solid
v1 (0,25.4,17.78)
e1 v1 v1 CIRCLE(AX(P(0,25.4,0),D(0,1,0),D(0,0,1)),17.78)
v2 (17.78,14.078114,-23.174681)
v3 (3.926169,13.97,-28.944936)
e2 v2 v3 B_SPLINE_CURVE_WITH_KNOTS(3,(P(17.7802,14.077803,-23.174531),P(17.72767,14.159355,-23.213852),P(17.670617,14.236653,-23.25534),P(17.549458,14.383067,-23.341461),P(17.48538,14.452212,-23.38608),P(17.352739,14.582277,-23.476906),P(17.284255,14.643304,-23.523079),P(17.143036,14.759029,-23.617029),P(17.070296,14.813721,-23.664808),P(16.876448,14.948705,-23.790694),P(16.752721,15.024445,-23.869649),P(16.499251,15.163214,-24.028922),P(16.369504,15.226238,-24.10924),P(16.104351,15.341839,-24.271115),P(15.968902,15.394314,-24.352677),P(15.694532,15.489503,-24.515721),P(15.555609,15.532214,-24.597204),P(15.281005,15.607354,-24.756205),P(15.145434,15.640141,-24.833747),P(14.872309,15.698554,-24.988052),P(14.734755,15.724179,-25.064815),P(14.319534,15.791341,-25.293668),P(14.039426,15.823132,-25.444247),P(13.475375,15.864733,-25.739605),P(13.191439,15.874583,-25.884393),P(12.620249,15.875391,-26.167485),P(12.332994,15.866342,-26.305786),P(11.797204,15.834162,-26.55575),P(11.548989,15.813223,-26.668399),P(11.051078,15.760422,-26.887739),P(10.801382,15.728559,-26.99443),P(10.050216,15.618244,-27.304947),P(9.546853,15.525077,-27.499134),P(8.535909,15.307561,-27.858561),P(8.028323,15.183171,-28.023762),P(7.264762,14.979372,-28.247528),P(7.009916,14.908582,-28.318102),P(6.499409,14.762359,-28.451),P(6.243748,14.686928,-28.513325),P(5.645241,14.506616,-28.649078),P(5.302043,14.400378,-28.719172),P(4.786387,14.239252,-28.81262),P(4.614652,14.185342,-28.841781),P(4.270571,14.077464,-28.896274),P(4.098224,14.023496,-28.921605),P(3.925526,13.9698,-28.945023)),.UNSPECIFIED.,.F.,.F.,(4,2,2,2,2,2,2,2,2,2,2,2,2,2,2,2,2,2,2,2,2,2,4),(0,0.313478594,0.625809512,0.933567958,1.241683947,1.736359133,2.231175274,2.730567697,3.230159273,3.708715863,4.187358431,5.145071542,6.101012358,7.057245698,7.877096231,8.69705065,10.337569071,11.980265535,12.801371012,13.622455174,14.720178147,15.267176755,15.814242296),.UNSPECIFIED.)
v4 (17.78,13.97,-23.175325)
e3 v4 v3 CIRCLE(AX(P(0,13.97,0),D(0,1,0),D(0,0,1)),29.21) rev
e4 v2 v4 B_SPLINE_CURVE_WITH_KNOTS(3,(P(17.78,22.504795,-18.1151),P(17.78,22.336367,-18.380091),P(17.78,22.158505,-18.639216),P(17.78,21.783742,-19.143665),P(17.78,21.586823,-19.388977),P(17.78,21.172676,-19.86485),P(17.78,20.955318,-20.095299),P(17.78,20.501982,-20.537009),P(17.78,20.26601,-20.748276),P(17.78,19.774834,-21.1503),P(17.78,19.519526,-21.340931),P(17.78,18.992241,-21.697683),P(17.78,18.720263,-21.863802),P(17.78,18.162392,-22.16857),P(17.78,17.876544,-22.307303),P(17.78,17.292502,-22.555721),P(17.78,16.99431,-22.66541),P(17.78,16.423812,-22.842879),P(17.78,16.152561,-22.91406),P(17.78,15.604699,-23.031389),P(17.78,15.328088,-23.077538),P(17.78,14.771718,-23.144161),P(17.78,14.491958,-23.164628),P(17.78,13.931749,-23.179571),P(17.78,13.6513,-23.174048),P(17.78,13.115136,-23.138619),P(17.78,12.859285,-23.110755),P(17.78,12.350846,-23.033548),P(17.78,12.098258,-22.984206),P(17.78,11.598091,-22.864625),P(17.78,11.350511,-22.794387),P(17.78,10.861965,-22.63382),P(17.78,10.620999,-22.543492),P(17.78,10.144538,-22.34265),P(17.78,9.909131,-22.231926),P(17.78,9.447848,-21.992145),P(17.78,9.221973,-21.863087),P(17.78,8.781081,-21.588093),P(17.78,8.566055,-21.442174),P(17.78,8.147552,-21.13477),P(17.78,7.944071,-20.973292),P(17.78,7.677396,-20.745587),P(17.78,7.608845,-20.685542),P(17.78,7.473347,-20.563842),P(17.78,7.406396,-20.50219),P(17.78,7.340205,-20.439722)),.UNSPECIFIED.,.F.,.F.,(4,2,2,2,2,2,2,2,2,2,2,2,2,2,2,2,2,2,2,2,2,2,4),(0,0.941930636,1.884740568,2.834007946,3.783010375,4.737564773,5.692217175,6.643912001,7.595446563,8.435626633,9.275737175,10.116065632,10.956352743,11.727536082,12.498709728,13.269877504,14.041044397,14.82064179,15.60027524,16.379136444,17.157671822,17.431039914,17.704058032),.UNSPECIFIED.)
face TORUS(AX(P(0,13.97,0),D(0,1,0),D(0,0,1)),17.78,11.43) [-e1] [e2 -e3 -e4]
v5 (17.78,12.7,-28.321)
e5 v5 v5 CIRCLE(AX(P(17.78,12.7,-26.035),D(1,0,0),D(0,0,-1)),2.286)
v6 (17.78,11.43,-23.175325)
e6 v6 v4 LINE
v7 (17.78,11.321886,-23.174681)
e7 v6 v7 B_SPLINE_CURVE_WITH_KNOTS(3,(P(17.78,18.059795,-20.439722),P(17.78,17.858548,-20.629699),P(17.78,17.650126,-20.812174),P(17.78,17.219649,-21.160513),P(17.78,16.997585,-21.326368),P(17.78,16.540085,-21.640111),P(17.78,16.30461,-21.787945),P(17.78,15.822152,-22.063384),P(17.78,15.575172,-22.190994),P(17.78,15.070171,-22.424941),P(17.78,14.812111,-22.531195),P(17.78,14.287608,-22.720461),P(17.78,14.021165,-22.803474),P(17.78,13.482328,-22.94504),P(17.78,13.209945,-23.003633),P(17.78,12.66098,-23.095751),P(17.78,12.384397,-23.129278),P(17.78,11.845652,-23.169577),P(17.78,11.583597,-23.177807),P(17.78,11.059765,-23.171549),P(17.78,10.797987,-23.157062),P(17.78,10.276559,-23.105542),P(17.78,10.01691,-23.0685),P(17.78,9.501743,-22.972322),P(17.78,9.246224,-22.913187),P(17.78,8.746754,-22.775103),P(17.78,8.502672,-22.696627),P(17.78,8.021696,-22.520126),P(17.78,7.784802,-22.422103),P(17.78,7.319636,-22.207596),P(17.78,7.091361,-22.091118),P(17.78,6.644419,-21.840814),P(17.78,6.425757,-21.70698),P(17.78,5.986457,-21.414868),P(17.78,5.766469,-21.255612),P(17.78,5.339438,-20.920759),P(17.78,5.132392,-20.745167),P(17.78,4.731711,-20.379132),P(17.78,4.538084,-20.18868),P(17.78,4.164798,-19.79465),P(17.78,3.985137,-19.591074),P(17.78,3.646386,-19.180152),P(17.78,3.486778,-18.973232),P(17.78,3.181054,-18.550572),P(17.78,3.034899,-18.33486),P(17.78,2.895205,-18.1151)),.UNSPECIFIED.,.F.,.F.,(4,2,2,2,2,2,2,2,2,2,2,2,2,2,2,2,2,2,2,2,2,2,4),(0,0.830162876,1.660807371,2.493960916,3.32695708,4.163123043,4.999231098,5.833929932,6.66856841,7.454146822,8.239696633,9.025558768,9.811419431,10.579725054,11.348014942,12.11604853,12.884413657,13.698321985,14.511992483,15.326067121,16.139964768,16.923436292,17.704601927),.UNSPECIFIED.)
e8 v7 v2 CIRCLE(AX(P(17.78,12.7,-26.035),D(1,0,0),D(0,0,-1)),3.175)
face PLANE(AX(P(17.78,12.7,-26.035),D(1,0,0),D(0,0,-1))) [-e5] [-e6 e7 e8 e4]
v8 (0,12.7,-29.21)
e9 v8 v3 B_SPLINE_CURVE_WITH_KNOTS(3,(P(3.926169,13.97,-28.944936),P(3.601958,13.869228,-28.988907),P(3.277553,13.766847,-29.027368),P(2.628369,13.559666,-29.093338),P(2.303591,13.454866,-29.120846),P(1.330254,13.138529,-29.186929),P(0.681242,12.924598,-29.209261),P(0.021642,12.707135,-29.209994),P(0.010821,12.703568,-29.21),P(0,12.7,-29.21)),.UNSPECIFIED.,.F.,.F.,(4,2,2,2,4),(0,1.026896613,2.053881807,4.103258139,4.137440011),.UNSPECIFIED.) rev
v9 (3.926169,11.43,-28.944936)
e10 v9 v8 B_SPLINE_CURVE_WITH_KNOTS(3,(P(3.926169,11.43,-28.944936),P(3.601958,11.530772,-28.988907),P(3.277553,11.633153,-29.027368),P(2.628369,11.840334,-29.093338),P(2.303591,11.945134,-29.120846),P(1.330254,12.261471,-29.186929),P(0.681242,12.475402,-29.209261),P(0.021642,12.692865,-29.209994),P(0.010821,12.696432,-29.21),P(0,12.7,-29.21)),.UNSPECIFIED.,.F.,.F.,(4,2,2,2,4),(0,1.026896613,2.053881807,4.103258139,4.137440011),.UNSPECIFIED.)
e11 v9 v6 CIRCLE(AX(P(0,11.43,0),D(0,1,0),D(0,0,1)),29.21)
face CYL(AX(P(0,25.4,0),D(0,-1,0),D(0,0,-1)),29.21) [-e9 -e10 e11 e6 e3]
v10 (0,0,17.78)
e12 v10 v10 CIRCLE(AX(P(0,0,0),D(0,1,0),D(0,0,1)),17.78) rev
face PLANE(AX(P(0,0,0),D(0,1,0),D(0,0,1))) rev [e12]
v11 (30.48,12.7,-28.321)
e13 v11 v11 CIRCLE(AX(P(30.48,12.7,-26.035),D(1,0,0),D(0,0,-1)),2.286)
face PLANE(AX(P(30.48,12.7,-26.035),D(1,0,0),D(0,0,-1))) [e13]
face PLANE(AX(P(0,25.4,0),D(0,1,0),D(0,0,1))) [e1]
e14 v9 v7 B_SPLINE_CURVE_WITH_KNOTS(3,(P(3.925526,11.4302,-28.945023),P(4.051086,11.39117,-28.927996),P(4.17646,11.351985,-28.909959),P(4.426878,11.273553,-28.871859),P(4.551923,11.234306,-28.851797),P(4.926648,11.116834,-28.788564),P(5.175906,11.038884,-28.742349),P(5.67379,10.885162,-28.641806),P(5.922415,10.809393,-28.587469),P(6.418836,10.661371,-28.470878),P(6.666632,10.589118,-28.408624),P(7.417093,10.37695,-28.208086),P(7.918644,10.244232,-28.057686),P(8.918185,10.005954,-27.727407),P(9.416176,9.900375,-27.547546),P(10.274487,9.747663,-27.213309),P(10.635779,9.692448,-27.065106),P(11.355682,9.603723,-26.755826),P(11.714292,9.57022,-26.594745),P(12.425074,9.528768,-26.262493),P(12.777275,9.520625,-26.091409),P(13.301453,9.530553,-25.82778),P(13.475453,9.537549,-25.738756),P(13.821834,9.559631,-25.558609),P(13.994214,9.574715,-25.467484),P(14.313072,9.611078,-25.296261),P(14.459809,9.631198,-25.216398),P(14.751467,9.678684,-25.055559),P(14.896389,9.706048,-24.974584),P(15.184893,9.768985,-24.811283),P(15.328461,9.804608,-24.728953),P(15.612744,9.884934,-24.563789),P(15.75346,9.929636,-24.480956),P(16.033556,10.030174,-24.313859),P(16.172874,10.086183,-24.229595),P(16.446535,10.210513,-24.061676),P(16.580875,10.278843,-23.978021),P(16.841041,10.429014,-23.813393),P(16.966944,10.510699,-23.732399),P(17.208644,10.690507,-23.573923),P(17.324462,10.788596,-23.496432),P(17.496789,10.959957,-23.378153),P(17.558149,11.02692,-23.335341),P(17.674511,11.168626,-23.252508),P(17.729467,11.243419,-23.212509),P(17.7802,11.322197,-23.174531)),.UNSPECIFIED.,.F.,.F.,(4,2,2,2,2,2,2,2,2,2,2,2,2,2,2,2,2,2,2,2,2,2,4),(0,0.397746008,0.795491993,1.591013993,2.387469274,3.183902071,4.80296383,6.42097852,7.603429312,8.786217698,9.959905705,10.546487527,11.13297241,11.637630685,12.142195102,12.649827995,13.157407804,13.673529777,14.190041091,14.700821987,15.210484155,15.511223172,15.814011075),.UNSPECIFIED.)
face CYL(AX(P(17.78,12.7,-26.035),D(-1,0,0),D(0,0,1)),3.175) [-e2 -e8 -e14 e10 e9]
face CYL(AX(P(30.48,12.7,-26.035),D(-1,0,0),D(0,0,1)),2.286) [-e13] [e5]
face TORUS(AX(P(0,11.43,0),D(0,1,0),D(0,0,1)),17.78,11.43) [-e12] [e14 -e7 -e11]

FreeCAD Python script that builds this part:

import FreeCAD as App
import Part
import Sketcher
from FreeCAD import Vector
Q = App.Units.Quantity


def edges_at(feature, points):
    """Names of the edges that pass closest to the given points."""
    edges = feature.Shape.Edges
    near = lambda p: min(range(len(edges)), key=lambda i: edges[i].distToShape(Part.Vertex(*p))[0])
    return sorted({f"Edge{near(p) + 1}" for p in points})

doc = App.newDocument("Part")
params = doc.addObject("Spreadsheet::Sheet", "Params")
for row, (alias, value) in enumerate([
    ("sketch1_diameter", "2.3 in"),
    ("pad1_length", "1 in"),
    ("fillet_radius", "0.45 in"),
    ("sketch2_diameter", "0.25 in"),
    ("pad2_length", "0.7 in"),
    ("sketch3_diameter", "0.18 in"),
    ("pad3_length", "0.5 in"),
], start=1):
    params.set(f"A{row}", alias)
    params.set(f"B{row}", "=" + value)
    params.setAlias(f"B{row}", alias)

body = doc.addObject("PartDesign::Body", "Body")

# Sketch on XZ plane
sketch1 = body.newObject("Sketcher::SketchObject", "Sketch")
sketch1.AttachmentSupport = (doc.getObject("XZ_Plane"), [""])
sketch1.MapMode = "FlatFace"
sketch1.addGeometry(Part.Circle(Vector(0, 0, 0), Vector(0, 0, 1), 29.21), False)
sketch1.addConstraint(Sketcher.Constraint("Coincident", 0, 3, -1, 1))
sketch1.addConstraint(Sketcher.Constraint("Diameter", 0, Q("2.3 in")))
sketch1.setExpression("Constraints[1]", "Params.sketch1_diameter")
pad1 = body.newObject("PartDesign::Pad", "Pad")
pad1.Profile = sketch1
pad1.setExpression("Length", "Params.pad1_length")
pad1.Reversed = True
doc.recompute()

fillet = body.newObject("PartDesign::Fillet", "Fillet")
fillet.Base = (pad1, edges_at(pad1, [(0, 0, -29.21), (0, 25.4, -29.21)]))
fillet.setExpression("Radius", "Params.fillet_radius")

# Sketch on YZ plane
sketch2 = body.newObject("Sketcher::SketchObject", "Sketch001")
sketch2.AttachmentSupport = (doc.getObject("YZ_Plane"), [""])
sketch2.MapMode = "FlatFace"
sketch2.addGeometry(Part.Circle(Vector(12.7, -26.035, 0), Vector(0, 0, 1), 3.175), False)
sketch2.addConstraint(Sketcher.Constraint("Diameter", 0, Q("0.25 in")))
sketch2.addConstraint(Sketcher.Constraint("DistanceX", -1, 1, 0, 3, Q("0.5 in")))
sketch2.addConstraint(Sketcher.Constraint("DistanceY", 0, 3, -1, 1, Q("1.025 in")))
sketch2.setExpression("Constraints[0]", "Params.sketch2_diameter")
pad2 = body.newObject("PartDesign::Pad", "Pad001")
pad2.Profile = sketch2
pad2.setExpression("Length", "Params.pad2_length")

# Sketch on YZ plane
sketch3 = body.newObject("Sketcher::SketchObject", "Sketch002")
sketch3.AttachmentSupport = (doc.getObject("YZ_Plane"), [""])
sketch3.MapMode = "FlatFace"
sketch3.AttachmentOffset = App.Placement(Vector(0, 0, 0.7 * 25.4), App.Rotation())
sketch3.addGeometry(Part.Circle(Vector(12.7, -26.035, 0), Vector(0, 0, 1), 2.286), False)
sketch3.addConstraint(Sketcher.Constraint("Diameter", 0, Q("0.18 in")))
sketch3.addConstraint(Sketcher.Constraint("DistanceX", -1, 1, 0, 3, Q("0.5 in")))
sketch3.addConstraint(Sketcher.Constraint("DistanceY", 0, 3, -1, 1, Q("1.025 in")))
sketch3.setExpression("Constraints[0]", "Params.sketch3_diameter")
pad3 = body.newObject("PartDesign::Pad", "Pad002")
pad3.Profile = sketch3
pad3.setExpression("Length", "Params.pad3_length")

doc.recompute()
